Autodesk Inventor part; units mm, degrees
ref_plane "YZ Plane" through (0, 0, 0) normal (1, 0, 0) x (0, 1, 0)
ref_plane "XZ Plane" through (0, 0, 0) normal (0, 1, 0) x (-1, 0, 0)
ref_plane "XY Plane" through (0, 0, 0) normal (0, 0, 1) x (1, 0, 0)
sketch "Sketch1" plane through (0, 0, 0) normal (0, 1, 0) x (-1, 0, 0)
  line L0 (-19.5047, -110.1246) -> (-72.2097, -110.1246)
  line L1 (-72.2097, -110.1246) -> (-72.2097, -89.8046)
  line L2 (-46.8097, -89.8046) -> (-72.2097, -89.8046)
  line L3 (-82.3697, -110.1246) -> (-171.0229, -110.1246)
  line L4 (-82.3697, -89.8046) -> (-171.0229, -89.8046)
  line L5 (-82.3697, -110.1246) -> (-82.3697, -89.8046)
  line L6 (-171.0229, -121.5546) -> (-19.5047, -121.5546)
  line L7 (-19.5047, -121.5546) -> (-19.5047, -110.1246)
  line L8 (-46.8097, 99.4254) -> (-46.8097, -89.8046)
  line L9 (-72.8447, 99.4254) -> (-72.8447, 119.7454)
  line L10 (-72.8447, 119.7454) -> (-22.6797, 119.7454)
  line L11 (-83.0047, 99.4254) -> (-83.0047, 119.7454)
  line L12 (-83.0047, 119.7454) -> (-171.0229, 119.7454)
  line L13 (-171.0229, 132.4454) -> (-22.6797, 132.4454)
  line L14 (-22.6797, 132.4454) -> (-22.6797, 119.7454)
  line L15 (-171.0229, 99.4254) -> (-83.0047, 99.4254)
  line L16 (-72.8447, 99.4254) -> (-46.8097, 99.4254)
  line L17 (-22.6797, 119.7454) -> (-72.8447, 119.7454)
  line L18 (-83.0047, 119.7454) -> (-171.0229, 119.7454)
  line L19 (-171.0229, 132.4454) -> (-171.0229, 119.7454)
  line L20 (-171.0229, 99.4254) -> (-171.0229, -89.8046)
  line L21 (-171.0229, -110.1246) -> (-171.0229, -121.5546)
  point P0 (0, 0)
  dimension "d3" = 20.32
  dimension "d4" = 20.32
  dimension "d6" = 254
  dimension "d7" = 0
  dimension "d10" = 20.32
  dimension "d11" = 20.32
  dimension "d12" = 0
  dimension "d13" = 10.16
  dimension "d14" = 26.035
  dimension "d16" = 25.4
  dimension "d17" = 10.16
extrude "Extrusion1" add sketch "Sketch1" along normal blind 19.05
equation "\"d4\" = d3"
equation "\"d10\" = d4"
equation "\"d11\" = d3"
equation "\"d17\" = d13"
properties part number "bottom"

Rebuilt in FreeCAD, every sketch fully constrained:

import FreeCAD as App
import Part
import Sketcher
Q = App.Units.Quantity


def add_polygon(sketch, points):
    """Adds a closed chain of lines whose ends are joined by coincident constraints."""
    first, n = sketch.GeometryCount, len(points)
    for a, b in zip(points, points[1:] + points[:1]):
        sketch.addGeometry(Part.LineSegment(App.Vector(*a, 0), App.Vector(*b, 0)), False)
    for i in range(n):
        sketch.addConstraint(Sketcher.Constraint("Coincident", first + i, 2, first + (i + 1) % n, 1))

doc = App.newDocument("Part")
params = doc.addObject("Spreadsheet::Sheet", "Params")
for row, (alias, value) in enumerate([
    ("sketch1_width", "1 in"),
    ("sketch1_height", "0.8 in"),
    ("sketch1_width2", "1.025 in"),
    ("sketch1_height2", "0.5 in"),
    ("sketch1_height3", "0.45 in"),
    ("pad1_length", "0.75 in"),
], start=1):
    params.set(f"A{row}", alias)
    params.set(f"B{row}", "=" + value)
    params.setAlias(f"B{row}", alias)

body = doc.addObject("PartDesign::Body", "Body")

sketch1 = doc.addObject("Sketcher::SketchObject", "Sketch")
body.addObject(sketch1)
sketch1.AttachmentSupport = (doc.XZ_Plane, [""])
sketch1.MapMode = "FlatFace"
add_polygon(sketch1, [(19.5047, -121.5546), (19.5047, -110.1246), (72.2097, -110.1246), (72.2097, -89.8046), (46.8097, -89.8046), (46.8097, 99.4254), (72.8447, 99.4254), (72.8447, 119.7454), (22.6797, 119.7454), (22.6797, 132.4454), (171.0229, 132.4454), (171.0229, 119.7454), (83.0047, 119.7454), (83.0047, 99.4254), (171.0229, 99.4254), (171.0229, -89.8046), (82.3697, -89.8046), (82.3697, -110.1246), (171.0229, -110.1246), (171.0229, -121.5546)])
sketch1.addConstraint([
    Sketcher.Constraint("Vertical", 0),
    Sketcher.Constraint("Horizontal", 1),
    Sketcher.Constraint("Vertical", 2),
    Sketcher.Constraint("Horizontal", 3),
    Sketcher.Constraint("Vertical", 4),
    Sketcher.Constraint("Horizontal", 5),
    Sketcher.Constraint("Vertical", 6),
    Sketcher.Constraint("Horizontal", 7),
    Sketcher.Constraint("Vertical", 8),
    Sketcher.Constraint("Horizontal", 9),
    Sketcher.Constraint("Vertical", 10),
    Sketcher.Constraint("Horizontal", 11),
    Sketcher.Constraint("Vertical", 12),
    Sketcher.Constraint("Horizontal", 13),
    Sketcher.Constraint("Vertical", 14),
    Sketcher.Constraint("Horizontal", 15),
    Sketcher.Constraint("Vertical", 16),
    Sketcher.Constraint("Horizontal", 17),
    Sketcher.Constraint("Vertical", 18),
    Sketcher.Constraint("Horizontal", 19),
    Sketcher.Constraint("Horizontal", 7, 2, 10, 2),
    Sketcher.Constraint("Horizontal", 5, 2, 12, 2),
    Sketcher.Constraint("Horizontal", 3, 2, 14, 2),
    Sketcher.Constraint("Horizontal", 1, 2, 16, 2),
    Sketcher.Constraint("Vertical", 10, 2, 13, 2),
    Sketcher.Constraint("Vertical", 14, 2, 17, 2),
    Sketcher.Constraint("Equal", 2, 6),
    Sketcher.Constraint("DistanceX", 3, 2, 3, 1, Q("1 in")),
    Sketcher.Constraint("DistanceY", 2, 1, 2, 2, Q("0.8 in")),
    Sketcher.Constraint("DistanceX", 6, 2, 11, 2, Q("0.4 in")),
    Sketcher.Constraint("DistanceX", 2, 2, 15, 2, Q("0.4 in")),
    Sketcher.Constraint("DistanceX", 5, 1, 5, 2, Q("1.025 in")),
    Sketcher.Constraint("DistanceY", 8, 1, 8, 2, Q("0.5 in")),
    Sketcher.Constraint("DistanceY", 0, 1, 0, 2, Q("0.45 in")),
    Sketcher.Constraint("DistanceY", 4, 1, 4, 2, Q("7.45 in")),
    Sketcher.Constraint("DistanceX", 0, 2, 5, 2, Q("2.1 in")),
    Sketcher.Constraint("DistanceX", 7, 2, 7, 1, Q("1.975 in")),
    Sketcher.Constraint("DistanceX", 9, 1, 9, 2, 148.3432),
    Sketcher.Constraint("DistanceX", -1, 1, 0, 2, Q("0.7679 in")),
    Sketcher.Constraint("DistanceY", 0, 2, -1, 1, 110.1246),
])
sketch1.setExpression("Constraints[47]", "Params.sketch1_width")
sketch1.setExpression("Constraints[48]", "Params.sketch1_height")
sketch1.setExpression("Constraints[51]", "Params.sketch1_width2")
sketch1.setExpression("Constraints[52]", "Params.sketch1_height2")
sketch1.setExpression("Constraints[53]", "Params.sketch1_height3")
pad1 = doc.addObject("PartDesign::Pad", "Pad")
body.addObject(pad1)
pad1.Profile = sketch1
pad1.setExpression("Length", "Params.pad1_length")
pad1.Reversed = True

doc.recompute()
